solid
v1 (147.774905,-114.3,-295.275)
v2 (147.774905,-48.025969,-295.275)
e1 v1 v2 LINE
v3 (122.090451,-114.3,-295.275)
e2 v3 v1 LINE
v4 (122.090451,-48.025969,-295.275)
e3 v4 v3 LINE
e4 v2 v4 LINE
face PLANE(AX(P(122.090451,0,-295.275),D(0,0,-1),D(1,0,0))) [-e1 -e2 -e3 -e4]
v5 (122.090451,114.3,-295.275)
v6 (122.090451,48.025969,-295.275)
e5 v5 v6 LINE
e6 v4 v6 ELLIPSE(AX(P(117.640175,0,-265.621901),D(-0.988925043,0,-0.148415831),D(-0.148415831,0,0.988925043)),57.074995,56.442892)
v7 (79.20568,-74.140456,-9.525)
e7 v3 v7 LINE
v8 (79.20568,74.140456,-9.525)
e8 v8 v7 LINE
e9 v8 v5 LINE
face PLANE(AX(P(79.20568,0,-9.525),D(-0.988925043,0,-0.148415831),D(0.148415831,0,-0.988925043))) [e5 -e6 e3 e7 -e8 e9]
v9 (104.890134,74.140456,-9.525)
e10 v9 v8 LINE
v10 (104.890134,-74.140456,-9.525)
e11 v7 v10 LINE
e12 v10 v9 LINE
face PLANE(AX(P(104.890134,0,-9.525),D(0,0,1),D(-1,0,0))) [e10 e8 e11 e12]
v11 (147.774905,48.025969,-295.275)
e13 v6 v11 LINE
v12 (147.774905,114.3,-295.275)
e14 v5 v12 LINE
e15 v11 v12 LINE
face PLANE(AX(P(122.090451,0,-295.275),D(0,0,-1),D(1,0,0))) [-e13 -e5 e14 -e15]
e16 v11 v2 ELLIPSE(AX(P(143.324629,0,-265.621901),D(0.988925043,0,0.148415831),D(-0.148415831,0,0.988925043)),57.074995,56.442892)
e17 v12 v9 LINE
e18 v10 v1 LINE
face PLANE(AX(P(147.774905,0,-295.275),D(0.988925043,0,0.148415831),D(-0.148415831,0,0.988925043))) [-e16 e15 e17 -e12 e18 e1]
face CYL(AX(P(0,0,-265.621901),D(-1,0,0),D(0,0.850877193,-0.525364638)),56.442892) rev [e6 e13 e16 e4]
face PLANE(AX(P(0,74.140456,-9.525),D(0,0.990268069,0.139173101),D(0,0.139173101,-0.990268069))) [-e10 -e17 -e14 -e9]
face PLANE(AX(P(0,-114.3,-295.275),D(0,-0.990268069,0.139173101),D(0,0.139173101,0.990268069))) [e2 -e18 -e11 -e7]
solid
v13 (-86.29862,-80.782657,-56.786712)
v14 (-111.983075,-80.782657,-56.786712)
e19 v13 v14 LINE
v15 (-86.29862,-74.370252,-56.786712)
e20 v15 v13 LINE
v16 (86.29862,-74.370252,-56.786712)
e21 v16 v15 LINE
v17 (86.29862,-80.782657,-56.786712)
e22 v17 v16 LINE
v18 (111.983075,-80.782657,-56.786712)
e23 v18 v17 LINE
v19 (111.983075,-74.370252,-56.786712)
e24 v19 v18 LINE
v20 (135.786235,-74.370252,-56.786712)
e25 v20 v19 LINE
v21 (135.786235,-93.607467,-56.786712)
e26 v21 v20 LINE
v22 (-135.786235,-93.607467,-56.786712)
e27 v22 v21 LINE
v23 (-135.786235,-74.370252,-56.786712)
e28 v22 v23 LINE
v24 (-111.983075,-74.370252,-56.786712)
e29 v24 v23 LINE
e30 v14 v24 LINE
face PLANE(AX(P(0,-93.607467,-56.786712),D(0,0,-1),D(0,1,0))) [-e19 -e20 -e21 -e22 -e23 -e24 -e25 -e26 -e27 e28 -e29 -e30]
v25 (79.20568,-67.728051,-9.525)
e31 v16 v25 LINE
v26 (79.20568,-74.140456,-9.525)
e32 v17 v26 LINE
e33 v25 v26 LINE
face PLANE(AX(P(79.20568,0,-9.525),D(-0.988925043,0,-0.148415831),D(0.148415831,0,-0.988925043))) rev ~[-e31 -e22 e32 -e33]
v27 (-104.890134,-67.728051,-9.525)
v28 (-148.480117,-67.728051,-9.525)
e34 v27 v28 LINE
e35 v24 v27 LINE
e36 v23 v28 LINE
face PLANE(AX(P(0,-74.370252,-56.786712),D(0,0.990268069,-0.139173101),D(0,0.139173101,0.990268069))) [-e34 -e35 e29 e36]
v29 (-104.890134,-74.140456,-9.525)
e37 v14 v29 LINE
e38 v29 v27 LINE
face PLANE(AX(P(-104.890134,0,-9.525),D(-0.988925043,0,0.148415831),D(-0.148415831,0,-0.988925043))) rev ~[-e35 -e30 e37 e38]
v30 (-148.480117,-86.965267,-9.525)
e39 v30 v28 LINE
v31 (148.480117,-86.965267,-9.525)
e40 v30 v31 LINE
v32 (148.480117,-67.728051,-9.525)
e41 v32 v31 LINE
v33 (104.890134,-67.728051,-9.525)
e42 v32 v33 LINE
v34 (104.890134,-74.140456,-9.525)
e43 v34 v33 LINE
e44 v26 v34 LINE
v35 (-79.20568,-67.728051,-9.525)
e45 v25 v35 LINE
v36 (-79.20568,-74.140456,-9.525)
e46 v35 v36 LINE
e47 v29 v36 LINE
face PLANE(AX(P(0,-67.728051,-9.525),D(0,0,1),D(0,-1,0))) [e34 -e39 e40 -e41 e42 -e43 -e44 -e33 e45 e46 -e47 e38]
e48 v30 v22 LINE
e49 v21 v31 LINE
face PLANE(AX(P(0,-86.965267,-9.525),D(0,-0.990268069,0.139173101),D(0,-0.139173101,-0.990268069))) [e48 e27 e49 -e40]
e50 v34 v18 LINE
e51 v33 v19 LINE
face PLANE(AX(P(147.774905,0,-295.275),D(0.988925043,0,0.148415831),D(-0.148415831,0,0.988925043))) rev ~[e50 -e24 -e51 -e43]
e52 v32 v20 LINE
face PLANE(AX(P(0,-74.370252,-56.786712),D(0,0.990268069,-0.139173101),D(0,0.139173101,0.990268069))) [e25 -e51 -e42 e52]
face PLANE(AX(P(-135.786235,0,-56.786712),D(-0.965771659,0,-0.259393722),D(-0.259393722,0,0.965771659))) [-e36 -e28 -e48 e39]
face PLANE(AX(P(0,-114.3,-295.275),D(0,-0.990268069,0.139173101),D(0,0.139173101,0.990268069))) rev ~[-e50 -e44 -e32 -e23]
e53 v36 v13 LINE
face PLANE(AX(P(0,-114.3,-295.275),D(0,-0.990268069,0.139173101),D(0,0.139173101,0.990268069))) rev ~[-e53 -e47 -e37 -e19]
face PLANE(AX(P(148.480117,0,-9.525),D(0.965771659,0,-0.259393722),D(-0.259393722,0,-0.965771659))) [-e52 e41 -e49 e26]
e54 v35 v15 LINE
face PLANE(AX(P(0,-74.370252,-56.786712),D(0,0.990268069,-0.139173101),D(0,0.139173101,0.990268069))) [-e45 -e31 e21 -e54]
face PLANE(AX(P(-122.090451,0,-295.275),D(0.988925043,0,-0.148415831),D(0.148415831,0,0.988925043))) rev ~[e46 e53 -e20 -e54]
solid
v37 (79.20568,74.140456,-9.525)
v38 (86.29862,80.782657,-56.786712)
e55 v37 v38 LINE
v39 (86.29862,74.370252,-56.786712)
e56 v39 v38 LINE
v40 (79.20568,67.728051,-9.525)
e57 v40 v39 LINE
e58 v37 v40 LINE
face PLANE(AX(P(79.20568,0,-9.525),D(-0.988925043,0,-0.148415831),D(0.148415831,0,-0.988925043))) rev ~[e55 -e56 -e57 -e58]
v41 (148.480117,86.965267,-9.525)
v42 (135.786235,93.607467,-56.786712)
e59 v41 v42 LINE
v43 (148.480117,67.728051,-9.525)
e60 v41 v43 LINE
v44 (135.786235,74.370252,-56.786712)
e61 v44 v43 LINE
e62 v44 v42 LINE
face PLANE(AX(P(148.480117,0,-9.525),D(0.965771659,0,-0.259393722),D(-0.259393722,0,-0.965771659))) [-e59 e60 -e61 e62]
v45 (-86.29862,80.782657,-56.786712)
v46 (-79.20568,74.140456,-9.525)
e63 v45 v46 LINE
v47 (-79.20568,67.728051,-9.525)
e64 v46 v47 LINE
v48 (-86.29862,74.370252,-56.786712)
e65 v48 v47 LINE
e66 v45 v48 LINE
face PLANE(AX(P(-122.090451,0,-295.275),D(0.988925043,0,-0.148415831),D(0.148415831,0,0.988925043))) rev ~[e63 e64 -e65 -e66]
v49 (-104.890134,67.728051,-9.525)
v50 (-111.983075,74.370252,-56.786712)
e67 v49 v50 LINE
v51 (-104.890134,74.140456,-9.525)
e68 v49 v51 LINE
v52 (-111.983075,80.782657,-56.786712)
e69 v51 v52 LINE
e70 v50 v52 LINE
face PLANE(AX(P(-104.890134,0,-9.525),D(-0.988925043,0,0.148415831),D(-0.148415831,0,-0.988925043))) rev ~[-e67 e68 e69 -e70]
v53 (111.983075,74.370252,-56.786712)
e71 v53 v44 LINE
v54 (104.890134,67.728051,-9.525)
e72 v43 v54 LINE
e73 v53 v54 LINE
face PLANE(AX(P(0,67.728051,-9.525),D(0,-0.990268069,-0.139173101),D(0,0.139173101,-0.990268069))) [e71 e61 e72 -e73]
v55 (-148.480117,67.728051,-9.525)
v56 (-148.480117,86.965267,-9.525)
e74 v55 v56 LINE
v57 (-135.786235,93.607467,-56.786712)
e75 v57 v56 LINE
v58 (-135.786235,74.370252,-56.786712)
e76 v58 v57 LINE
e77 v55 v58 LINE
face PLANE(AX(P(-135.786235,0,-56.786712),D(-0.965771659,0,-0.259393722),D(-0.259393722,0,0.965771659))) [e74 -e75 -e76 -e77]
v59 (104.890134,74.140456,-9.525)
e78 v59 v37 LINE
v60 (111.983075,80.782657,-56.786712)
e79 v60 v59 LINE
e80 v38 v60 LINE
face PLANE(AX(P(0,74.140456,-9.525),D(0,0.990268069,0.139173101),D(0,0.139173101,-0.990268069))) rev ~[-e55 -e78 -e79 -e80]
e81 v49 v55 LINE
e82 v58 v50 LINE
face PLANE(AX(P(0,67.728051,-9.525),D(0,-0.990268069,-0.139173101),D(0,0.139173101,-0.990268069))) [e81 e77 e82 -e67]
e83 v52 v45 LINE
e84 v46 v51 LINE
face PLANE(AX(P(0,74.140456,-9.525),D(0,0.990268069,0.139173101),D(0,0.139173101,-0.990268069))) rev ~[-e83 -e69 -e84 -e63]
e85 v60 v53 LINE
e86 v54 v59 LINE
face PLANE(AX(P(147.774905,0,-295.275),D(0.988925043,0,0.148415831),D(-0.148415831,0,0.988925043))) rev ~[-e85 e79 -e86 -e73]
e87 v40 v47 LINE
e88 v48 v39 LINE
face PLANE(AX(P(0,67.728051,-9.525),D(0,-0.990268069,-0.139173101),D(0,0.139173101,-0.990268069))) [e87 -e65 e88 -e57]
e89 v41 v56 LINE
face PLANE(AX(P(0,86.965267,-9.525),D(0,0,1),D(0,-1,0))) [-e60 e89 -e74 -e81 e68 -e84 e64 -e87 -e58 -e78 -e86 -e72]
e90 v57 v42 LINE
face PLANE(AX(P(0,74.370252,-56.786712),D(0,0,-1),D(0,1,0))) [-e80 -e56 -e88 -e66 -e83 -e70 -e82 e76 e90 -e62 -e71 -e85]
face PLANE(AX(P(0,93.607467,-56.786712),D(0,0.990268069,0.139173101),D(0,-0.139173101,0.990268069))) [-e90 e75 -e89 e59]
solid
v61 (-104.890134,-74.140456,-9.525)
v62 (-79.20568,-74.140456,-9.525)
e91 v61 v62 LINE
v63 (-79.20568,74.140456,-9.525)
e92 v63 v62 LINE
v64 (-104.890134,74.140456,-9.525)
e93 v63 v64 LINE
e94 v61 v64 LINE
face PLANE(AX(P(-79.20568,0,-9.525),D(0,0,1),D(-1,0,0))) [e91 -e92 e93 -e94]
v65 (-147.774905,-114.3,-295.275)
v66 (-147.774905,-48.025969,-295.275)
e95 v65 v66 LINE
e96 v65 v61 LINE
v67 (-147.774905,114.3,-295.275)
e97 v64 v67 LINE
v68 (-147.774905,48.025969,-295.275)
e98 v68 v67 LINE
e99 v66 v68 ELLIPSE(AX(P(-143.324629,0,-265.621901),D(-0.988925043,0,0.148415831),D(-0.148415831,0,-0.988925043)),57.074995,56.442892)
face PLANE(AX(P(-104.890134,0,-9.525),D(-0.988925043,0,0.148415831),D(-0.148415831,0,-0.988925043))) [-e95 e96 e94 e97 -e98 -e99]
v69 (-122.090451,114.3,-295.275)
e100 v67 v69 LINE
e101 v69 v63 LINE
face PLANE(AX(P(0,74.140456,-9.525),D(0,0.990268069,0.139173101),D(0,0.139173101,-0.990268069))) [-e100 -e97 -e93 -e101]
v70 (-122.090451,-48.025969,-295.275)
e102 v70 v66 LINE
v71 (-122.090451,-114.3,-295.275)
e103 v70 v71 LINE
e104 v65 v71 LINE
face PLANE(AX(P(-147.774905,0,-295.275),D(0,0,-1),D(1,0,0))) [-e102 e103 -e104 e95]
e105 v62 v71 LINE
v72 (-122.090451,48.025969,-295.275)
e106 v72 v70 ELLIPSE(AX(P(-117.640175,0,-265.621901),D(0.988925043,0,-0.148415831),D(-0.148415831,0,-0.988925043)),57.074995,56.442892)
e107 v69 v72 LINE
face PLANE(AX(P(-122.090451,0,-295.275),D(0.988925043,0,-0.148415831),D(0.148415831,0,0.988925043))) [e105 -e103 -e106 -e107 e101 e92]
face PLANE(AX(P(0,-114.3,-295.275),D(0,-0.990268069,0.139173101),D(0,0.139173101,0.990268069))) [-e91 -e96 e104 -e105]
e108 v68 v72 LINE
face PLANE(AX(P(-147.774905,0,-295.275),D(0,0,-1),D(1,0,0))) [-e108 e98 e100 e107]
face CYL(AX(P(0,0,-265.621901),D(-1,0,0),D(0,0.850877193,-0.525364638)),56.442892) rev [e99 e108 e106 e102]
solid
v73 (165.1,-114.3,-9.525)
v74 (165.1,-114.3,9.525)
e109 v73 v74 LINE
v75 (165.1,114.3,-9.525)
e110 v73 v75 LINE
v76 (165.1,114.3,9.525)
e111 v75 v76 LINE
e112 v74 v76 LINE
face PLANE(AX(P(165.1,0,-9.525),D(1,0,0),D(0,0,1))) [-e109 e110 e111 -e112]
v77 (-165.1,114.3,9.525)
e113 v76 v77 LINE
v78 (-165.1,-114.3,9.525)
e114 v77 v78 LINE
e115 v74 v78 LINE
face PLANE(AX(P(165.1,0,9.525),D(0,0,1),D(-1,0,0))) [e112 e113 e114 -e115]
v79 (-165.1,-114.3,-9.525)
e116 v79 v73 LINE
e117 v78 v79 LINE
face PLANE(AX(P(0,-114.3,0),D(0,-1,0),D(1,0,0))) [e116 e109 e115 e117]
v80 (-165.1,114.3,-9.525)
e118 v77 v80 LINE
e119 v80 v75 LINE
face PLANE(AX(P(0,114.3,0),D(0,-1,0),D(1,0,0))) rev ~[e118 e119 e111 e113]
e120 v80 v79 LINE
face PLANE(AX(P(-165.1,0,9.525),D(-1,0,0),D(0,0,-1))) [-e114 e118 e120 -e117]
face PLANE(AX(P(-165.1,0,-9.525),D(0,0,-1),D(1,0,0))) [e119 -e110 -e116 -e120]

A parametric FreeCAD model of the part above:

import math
import FreeCAD as App
import Part
import Sketcher
from FreeCAD import Vector
Q = App.Units.Quantity


def add_polygon(sketch, points):
    """Adds a closed chain of lines whose ends are joined by coincident constraints."""
    first, n = sketch.GeometryCount, len(points)
    for a, b in zip(points, points[1:] + points[:1]):
        sketch.addGeometry(Part.LineSegment(App.Vector(*a, 0), App.Vector(*b, 0)), False)
    for i in range(n):
        sketch.addConstraint(Sketcher.Constraint("Coincident", first + i, 2, first + (i + 1) % n, 1))

doc = App.newDocument("Part")
params = doc.addObject("Spreadsheet::Sheet", "Params")
for row, (alias, value) in enumerate([
    ("sketch1_width", "13 in"),
    ("sketch1_height", "0.75 in"),
    ("pad1_length", "9 in"),
    ("pad2_length", "4.5 in"),
    ("pad2_length2", "4.5 in"),
    ("pad3_length", "4.5 in"),
    ("pad3_length2", "4.5 in"),
    ("sketch4_height", "11.25 in"),
    ("pad4_length", "165.101 mm"),
    ("pad4_length2", "165.101 mm"),
    ("pad5_length", "6.5 in"),
    ("pad5_length2", "6.5 in"),
    ("pad6_length", "6.5 in"),
    ("pad6_length2", "6.5 in"),
    ("pad7_length", "114.301 mm"),
    ("pad7_length2", "114.301 mm"),
], start=1):
    params.set(f"A{row}", alias)
    params.set(f"B{row}", "=" + value)
    params.setAlias(f"B{row}", alias)

body = doc.addObject("PartDesign::Body", "Body")

# Sketch on XZ plane
sketch1 = body.newObject("Sketcher::SketchObject", "Sketch")
sketch1.AttachmentSupport = (doc.getObject("XZ_Plane"), [""])
sketch1.MapMode = "FlatFace"
add_polygon(sketch1, [(165, 10), (-165, 10), (-165, -10), (165, -10)])  # lines 0-3
sketch1.addConstraint(Sketcher.Constraint("Horizontal", 0))
sketch1.addConstraint(Sketcher.Constraint("Vertical", 1))
sketch1.addConstraint(Sketcher.Constraint("Horizontal", 2))
sketch1.addConstraint(Sketcher.Constraint("Vertical", 3))
sketch1.addConstraint(Sketcher.Constraint("Symmetric", 0, 2, 2, 2, -1, 1))
sketch1.addConstraint(Sketcher.Constraint("DistanceX", 0, 2, 0, 1, Q("13 in")))
sketch1.addConstraint(Sketcher.Constraint("DistanceY", 1, 2, 1, 1, Q("0.75 in")))
sketch1.setExpression("Constraints[9]", "Params.sketch1_width")
sketch1.setExpression("Constraints[10]", "Params.sketch1_height")
pad1 = body.newObject("PartDesign::Pad", "Pad")
pad1.Profile = sketch1
pad1.setExpression("Length", "Params.pad1_length")
pad1.Midplane = True
body2 = doc.addObject("PartDesign::Body", "Body001")

# Sketch on XZ plane
sketch2 = body2.newObject("Sketcher::SketchObject", "Sketch001")
sketch2.AttachmentSupport = (doc.getObject("XZ_Plane001"), [""])
sketch2.MapMode = "FlatFace"
add_polygon(sketch2, [(-148, -295), (-122, -295), (-79, -10), (-105, -10)])  # lines 0-3
sketch2.addConstraint(Sketcher.Constraint("Horizontal", 0))
sketch2.addConstraint(Sketcher.Constraint("Horizontal", 2))
sketch2.addConstraint(Sketcher.Constraint("Parallel", 1, 3))
sketch2.addConstraint(Sketcher.Constraint("DistanceY", 0, 2, 1, 2, Q("11.25 in")))
sketch2.addConstraint(Sketcher.Constraint("DistanceY", 0, 2, -1, 1, Q("11.625 in")))
sketch2.addConstraint(Sketcher.Constraint("Distance", 1, Q("288.95011 mm")))
sketch2.addConstraint(Sketcher.Constraint("DistanceX", 0, 1, 0, 2, Q("25.684454 mm")))
sketch2.addConstraint(Sketcher.Constraint("DistanceX", 0, 2, -1, 1, Q("122.090451 mm")))
pad2 = body2.newObject("PartDesign::Pad", "Pad001")
pad2.Profile = sketch2
pad2.Type = "TwoLengths"
pad2.setExpression("Length", "Params.pad2_length")
pad2.setExpression("Length2", "Params.pad2_length2")
body3 = doc.addObject("PartDesign::Body", "Body002")

# Sketch on XZ plane
sketch3 = body3.newObject("Sketcher::SketchObject", "Sketch002")
sketch3.AttachmentSupport = (doc.getObject("XZ_Plane002"), [""])
sketch3.MapMode = "FlatFace"
add_polygon(sketch3, [(105, -10), (79, -10), (122, -295), (148, -295)])  # lines 0-3
sketch3.addConstraint(Sketcher.Constraint("Horizontal", 0))
sketch3.addConstraint(Sketcher.Constraint("Horizontal", 2))
sketch3.addConstraint(Sketcher.Constraint("Parallel", 1, 3))
sketch3.addConstraint(Sketcher.Constraint("DistanceY", 1, 2, 0, 2, Q("11.25 in")))
sketch3.addConstraint(Sketcher.Constraint("DistanceY", 0, 2, -1, 1, Q("0.375 in")))
sketch3.addConstraint(Sketcher.Constraint("Distance", 1, Q("288.95011 mm")))
sketch3.addConstraint(Sketcher.Constraint("DistanceX", 0, 2, 0, 1, Q("25.684454 mm")))
sketch3.addConstraint(Sketcher.Constraint("DistanceX", -1, 1, 0, 2, Q("79.20568 mm")))
pad3 = body3.newObject("PartDesign::Pad", "Pad002")
pad3.Profile = sketch3
pad3.Type = "TwoLengths"
pad3.setExpression("Length", "Params.pad3_length")
pad3.setExpression("Length2", "Params.pad3_length2")
body4 = doc.addObject("PartDesign::Body", "Body003")
body4.AllowCompound = True

# Sketch on YZ plane
sketch4 = body4.newObject("Sketcher::SketchObject", "Sketch003")
sketch4.AttachmentSupport = (doc.getObject("YZ_Plane003"), [""])
sketch4.MapMode = "FlatFace"
add_polygon(sketch4, [(-114, -295), (-74, -10), (-114, -10)])  # lines 0-2
sketch4.addGeometry(Part.LineSegment(Vector(-48, -295, 0), Vector(48, -295, 0)), False)  # 3
sketch4.addGeometry(Part.ArcOfCircle(Part.Circle(Vector(0, -266, 0), Vector(0, 0, 1), 56), math.radians(-32), math.radians(212)), False)  # 4
add_polygon(sketch4, [(114, -295), (114, -10), (74, -10)])  # lines 5-7
sketch4.addConstraint(Sketcher.Constraint("Coincident", 3, 1, 4, 2))
sketch4.addConstraint(Sketcher.Constraint("Coincident", 4, 1, 3, 2))
sketch4.addConstraint(Sketcher.Constraint("Horizontal", 1))
sketch4.addConstraint(Sketcher.Constraint("Vertical", 2))
sketch4.addConstraint(Sketcher.Constraint("Horizontal", 3))
sketch4.addConstraint(Sketcher.Constraint("Vertical", 5))
sketch4.addConstraint(Sketcher.Constraint("Horizontal", 6))
sketch4.addConstraint(Sketcher.Constraint("Symmetric", 1, 2, 5, 2, -2))
sketch4.addConstraint(Sketcher.Constraint("PointOnObject", 4, 3, -2))
sketch4.addConstraint(Sketcher.Constraint("Horizontal", 2, 2, 3, 1))
sketch4.addConstraint(Sketcher.Constraint("Horizontal", 4, 1, 7, 2))
sketch4.addConstraint(Sketcher.Constraint("Equal", 1, 6))
sketch4.addConstraint(Sketcher.Constraint("Angle", 0, Q("82 deg")))
sketch4.addConstraint(Sketcher.Constraint("DistanceX", 1, 2, 5, 2, Q("9 in")))
sketch4.addConstraint(Sketcher.Constraint("DistanceY", 2, 2, 2, 1, Q("11.25 in")))
sketch4.addConstraint(Sketcher.Constraint("DistanceY", 0, 2, -1, 1, Q("0.375 in")))
sketch4.addConstraint(Sketcher.Constraint("Radius", 4, Q("56.442892 mm")))
sketch4.addConstraint(Sketcher.Constraint("DistanceX", 3, 1, 3, 2, Q("96.051939 mm")))
sketch4.setExpression("Constraints[20]", "Params.sketch4_height")
pad4 = body4.newObject("PartDesign::Pad", "Pad003")
pad4.Profile = sketch4
pad4.Type = "TwoLengths"
pad4.setExpression("Length", "Params.pad4_length")
pad4.setExpression("Length2", "Params.pad4_length2")
pad4.Reversed = True
doc.recompute()

body5 = doc.addObject("PartDesign::Body", "Body004")
body5.BaseFeature = body4
boolean = body2.newObject("PartDesign::Boolean", "Boolean")
boolean.Type = "Cut"
boolean.addObjects([body5])
doc.recompute()

boolean2 = body3.newObject("PartDesign::Boolean", "Boolean001")
boolean2.Type = "Cut"
boolean2.addObjects([body4])
body6 = doc.addObject("PartDesign::Body", "Body005")

# Sketch on YZ plane
sketch5 = body6.newObject("Sketcher::SketchObject", "Sketch004")
sketch5.AttachmentSupport = (doc.getObject("YZ_Plane005"), [""])
sketch5.MapMode = "FlatFace"
add_polygon(sketch5, [(-68, -10), (-87, -10), (-94, -57), (-74, -57)])  # lines 0-3
sketch5.addConstraint(Sketcher.Constraint("Horizontal", 0))
sketch5.addConstraint(Sketcher.Constraint("Horizontal", 2))
sketch5.addConstraint(Sketcher.Constraint("Parallel", 1, 3))
sketch5.addConstraint(Sketcher.Constraint("Angle", 1, Q("-98 deg")))
sketch5.addConstraint(Sketcher.Constraint("DistanceY", 0, 2, -1, 1, Q("0.375 in")))
sketch5.addConstraint(Sketcher.Constraint("DistanceX", 1, 2, 0, 2, Q("6.6422 mm")))
sketch5.addConstraint(Sketcher.Constraint("DistanceX", 0, 2, 0, 1, Q("19.237215 mm")))
sketch5.addConstraint(Sketcher.Constraint("DistanceX", 2, 2, -1, 1, Q("74.370252 mm")))
pad5 = body6.newObject("PartDesign::Pad", "Pad004")
pad5.Profile = sketch5
pad5.Type = "TwoLengths"
pad5.setExpression("Length", "Params.pad5_length")
pad5.setExpression("Length2", "Params.pad5_length2")
body7 = doc.addObject("PartDesign::Body", "Body006")

# Sketch on YZ plane
sketch6 = body7.newObject("Sketcher::SketchObject", "Sketch005")
sketch6.AttachmentSupport = (doc.getObject("YZ_Plane006"), [""])
sketch6.MapMode = "FlatFace"
add_polygon(sketch6, [(68, -10), (74, -57), (94, -57), (87, -10)])  # lines 0-3
sketch6.addConstraint(Sketcher.Constraint("Horizontal", 1))
sketch6.addConstraint(Sketcher.Constraint("Horizontal", 3))
sketch6.addConstraint(Sketcher.Constraint("Parallel", 0, 2))
sketch6.addConstraint(Sketcher.Constraint("Angle", 0, Q("-82 deg")))
sketch6.addConstraint(Sketcher.Constraint("DistanceY", 2, 2, -1, 1, Q("0.375 in")))
sketch6.addConstraint(Sketcher.Constraint("DistanceX", 2, 2, 1, 2, Q("6.6422 mm")))
sketch6.addConstraint(Sketcher.Constraint("DistanceX", 1, 1, 1, 2, Q("19.237215 mm")))
sketch6.addConstraint(Sketcher.Constraint("DistanceX", -1, 1, 0, 2, Q("74.370252 mm")))
pad6 = body7.newObject("PartDesign::Pad", "Pad005")
pad6.Profile = sketch6
pad6.Type = "TwoLengths"
pad6.setExpression("Length", "Params.pad6_length")
pad6.setExpression("Length2", "Params.pad6_length2")
body8 = doc.addObject("PartDesign::Body", "Body007")
body8.AllowCompound = True

# Sketch on XZ plane
sketch7 = body8.newObject("Sketcher::SketchObject", "Sketch006")
sketch7.AttachmentSupport = (doc.getObject("XZ_Plane007"), [""])
sketch7.MapMode = "FlatFace"
add_polygon(sketch7, [(-148, -10), (-165, -10), (-165, -57), (-136, -57)])  # lines 0-3
add_polygon(sketch7, [(165, -57), (165, -10), (148, -10), (136, -57)])  # lines 4-7
sketch7.addConstraint(Sketcher.Constraint("Horizontal", 0))
sketch7.addConstraint(Sketcher.Constraint("Vertical", 1))
sketch7.addConstraint(Sketcher.Constraint("Horizontal", 2))
sketch7.addConstraint(Sketcher.Constraint("Vertical", 4))
sketch7.addConstraint(Sketcher.Constraint("Horizontal", 5))
sketch7.addConstraint(Sketcher.Constraint("Horizontal", 7))
sketch7.addConstraint(Sketcher.Constraint("Symmetric", 0, 2, 4, 2, -2))
sketch7.addConstraint(Sketcher.Constraint("Symmetric", 2, 2, 6, 2, -2))
sketch7.addConstraint(Sketcher.Constraint("Equal", 0, 5))
sketch7.addConstraint(Sketcher.Constraint("DistanceX", 0, 2, 4, 2, Q("13 in")))
sketch7.addConstraint(Sketcher.Constraint("DistanceY", 0, 2, -1, 1, Q("0.375 in")))
sketch7.addConstraint(Sketcher.Constraint("DistanceX", 0, 2, 0, 1, Q("16.619883 mm")))
sketch7.addConstraint(Sketcher.Constraint("DistanceX", 2, 1, 2, 2, Q("29.313765 mm")))
sketch7.addConstraint(Sketcher.Constraint("DistanceY", 1, 2, 1, 1, Q("47.261712 mm")))
pad7 = body8.newObject("PartDesign::Pad", "Pad006")
pad7.Profile = sketch7
pad7.Type = "TwoLengths"
pad7.setExpression("Length", "Params.pad7_length")
pad7.setExpression("Length2", "Params.pad7_length2")
pad7.Reversed = True
doc.recompute()

body9 = doc.addObject("PartDesign::Body", "Body008")
body9.BaseFeature = body8
boolean3 = body6.newObject("PartDesign::Boolean", "Boolean002")
boolean3.Type = "Cut"
boolean3.addObjects([body9])
doc.recompute()

body10 = doc.addObject("PartDesign::Body", "Body009")
body10.BaseFeature = body3
boolean4 = body6.newObject("PartDesign::Boolean", "Boolean003")
boolean4.Type = "Cut"
boolean4.addObjects([body10])
doc.recompute()

body11 = doc.addObject("PartDesign::Body", "Body010")
body11.BaseFeature = body2
boolean5 = body6.newObject("PartDesign::Boolean", "Boolean004")
boolean5.Type = "Cut"
boolean5.addObjects([body11])
doc.recompute()

boolean6 = body7.newObject("PartDesign::Boolean", "Boolean005")
boolean6.Type = "Cut"
boolean6.addObjects([body8])
doc.recompute()

body12 = doc.addObject("PartDesign::Body", "Body011")
body12.BaseFeature = body2
boolean7 = body7.newObject("PartDesign::Boolean", "Boolean006")
boolean7.Type = "Cut"
boolean7.addObjects([body12])
doc.recompute()

body13 = doc.addObject("PartDesign::Body", "Body012")
body13.BaseFeature = body3
boolean8 = body7.newObject("PartDesign::Boolean", "Boolean007")
boolean8.Type = "Cut"
boolean8.addObjects([body13])
doc.recompute()

doc.recompute()
